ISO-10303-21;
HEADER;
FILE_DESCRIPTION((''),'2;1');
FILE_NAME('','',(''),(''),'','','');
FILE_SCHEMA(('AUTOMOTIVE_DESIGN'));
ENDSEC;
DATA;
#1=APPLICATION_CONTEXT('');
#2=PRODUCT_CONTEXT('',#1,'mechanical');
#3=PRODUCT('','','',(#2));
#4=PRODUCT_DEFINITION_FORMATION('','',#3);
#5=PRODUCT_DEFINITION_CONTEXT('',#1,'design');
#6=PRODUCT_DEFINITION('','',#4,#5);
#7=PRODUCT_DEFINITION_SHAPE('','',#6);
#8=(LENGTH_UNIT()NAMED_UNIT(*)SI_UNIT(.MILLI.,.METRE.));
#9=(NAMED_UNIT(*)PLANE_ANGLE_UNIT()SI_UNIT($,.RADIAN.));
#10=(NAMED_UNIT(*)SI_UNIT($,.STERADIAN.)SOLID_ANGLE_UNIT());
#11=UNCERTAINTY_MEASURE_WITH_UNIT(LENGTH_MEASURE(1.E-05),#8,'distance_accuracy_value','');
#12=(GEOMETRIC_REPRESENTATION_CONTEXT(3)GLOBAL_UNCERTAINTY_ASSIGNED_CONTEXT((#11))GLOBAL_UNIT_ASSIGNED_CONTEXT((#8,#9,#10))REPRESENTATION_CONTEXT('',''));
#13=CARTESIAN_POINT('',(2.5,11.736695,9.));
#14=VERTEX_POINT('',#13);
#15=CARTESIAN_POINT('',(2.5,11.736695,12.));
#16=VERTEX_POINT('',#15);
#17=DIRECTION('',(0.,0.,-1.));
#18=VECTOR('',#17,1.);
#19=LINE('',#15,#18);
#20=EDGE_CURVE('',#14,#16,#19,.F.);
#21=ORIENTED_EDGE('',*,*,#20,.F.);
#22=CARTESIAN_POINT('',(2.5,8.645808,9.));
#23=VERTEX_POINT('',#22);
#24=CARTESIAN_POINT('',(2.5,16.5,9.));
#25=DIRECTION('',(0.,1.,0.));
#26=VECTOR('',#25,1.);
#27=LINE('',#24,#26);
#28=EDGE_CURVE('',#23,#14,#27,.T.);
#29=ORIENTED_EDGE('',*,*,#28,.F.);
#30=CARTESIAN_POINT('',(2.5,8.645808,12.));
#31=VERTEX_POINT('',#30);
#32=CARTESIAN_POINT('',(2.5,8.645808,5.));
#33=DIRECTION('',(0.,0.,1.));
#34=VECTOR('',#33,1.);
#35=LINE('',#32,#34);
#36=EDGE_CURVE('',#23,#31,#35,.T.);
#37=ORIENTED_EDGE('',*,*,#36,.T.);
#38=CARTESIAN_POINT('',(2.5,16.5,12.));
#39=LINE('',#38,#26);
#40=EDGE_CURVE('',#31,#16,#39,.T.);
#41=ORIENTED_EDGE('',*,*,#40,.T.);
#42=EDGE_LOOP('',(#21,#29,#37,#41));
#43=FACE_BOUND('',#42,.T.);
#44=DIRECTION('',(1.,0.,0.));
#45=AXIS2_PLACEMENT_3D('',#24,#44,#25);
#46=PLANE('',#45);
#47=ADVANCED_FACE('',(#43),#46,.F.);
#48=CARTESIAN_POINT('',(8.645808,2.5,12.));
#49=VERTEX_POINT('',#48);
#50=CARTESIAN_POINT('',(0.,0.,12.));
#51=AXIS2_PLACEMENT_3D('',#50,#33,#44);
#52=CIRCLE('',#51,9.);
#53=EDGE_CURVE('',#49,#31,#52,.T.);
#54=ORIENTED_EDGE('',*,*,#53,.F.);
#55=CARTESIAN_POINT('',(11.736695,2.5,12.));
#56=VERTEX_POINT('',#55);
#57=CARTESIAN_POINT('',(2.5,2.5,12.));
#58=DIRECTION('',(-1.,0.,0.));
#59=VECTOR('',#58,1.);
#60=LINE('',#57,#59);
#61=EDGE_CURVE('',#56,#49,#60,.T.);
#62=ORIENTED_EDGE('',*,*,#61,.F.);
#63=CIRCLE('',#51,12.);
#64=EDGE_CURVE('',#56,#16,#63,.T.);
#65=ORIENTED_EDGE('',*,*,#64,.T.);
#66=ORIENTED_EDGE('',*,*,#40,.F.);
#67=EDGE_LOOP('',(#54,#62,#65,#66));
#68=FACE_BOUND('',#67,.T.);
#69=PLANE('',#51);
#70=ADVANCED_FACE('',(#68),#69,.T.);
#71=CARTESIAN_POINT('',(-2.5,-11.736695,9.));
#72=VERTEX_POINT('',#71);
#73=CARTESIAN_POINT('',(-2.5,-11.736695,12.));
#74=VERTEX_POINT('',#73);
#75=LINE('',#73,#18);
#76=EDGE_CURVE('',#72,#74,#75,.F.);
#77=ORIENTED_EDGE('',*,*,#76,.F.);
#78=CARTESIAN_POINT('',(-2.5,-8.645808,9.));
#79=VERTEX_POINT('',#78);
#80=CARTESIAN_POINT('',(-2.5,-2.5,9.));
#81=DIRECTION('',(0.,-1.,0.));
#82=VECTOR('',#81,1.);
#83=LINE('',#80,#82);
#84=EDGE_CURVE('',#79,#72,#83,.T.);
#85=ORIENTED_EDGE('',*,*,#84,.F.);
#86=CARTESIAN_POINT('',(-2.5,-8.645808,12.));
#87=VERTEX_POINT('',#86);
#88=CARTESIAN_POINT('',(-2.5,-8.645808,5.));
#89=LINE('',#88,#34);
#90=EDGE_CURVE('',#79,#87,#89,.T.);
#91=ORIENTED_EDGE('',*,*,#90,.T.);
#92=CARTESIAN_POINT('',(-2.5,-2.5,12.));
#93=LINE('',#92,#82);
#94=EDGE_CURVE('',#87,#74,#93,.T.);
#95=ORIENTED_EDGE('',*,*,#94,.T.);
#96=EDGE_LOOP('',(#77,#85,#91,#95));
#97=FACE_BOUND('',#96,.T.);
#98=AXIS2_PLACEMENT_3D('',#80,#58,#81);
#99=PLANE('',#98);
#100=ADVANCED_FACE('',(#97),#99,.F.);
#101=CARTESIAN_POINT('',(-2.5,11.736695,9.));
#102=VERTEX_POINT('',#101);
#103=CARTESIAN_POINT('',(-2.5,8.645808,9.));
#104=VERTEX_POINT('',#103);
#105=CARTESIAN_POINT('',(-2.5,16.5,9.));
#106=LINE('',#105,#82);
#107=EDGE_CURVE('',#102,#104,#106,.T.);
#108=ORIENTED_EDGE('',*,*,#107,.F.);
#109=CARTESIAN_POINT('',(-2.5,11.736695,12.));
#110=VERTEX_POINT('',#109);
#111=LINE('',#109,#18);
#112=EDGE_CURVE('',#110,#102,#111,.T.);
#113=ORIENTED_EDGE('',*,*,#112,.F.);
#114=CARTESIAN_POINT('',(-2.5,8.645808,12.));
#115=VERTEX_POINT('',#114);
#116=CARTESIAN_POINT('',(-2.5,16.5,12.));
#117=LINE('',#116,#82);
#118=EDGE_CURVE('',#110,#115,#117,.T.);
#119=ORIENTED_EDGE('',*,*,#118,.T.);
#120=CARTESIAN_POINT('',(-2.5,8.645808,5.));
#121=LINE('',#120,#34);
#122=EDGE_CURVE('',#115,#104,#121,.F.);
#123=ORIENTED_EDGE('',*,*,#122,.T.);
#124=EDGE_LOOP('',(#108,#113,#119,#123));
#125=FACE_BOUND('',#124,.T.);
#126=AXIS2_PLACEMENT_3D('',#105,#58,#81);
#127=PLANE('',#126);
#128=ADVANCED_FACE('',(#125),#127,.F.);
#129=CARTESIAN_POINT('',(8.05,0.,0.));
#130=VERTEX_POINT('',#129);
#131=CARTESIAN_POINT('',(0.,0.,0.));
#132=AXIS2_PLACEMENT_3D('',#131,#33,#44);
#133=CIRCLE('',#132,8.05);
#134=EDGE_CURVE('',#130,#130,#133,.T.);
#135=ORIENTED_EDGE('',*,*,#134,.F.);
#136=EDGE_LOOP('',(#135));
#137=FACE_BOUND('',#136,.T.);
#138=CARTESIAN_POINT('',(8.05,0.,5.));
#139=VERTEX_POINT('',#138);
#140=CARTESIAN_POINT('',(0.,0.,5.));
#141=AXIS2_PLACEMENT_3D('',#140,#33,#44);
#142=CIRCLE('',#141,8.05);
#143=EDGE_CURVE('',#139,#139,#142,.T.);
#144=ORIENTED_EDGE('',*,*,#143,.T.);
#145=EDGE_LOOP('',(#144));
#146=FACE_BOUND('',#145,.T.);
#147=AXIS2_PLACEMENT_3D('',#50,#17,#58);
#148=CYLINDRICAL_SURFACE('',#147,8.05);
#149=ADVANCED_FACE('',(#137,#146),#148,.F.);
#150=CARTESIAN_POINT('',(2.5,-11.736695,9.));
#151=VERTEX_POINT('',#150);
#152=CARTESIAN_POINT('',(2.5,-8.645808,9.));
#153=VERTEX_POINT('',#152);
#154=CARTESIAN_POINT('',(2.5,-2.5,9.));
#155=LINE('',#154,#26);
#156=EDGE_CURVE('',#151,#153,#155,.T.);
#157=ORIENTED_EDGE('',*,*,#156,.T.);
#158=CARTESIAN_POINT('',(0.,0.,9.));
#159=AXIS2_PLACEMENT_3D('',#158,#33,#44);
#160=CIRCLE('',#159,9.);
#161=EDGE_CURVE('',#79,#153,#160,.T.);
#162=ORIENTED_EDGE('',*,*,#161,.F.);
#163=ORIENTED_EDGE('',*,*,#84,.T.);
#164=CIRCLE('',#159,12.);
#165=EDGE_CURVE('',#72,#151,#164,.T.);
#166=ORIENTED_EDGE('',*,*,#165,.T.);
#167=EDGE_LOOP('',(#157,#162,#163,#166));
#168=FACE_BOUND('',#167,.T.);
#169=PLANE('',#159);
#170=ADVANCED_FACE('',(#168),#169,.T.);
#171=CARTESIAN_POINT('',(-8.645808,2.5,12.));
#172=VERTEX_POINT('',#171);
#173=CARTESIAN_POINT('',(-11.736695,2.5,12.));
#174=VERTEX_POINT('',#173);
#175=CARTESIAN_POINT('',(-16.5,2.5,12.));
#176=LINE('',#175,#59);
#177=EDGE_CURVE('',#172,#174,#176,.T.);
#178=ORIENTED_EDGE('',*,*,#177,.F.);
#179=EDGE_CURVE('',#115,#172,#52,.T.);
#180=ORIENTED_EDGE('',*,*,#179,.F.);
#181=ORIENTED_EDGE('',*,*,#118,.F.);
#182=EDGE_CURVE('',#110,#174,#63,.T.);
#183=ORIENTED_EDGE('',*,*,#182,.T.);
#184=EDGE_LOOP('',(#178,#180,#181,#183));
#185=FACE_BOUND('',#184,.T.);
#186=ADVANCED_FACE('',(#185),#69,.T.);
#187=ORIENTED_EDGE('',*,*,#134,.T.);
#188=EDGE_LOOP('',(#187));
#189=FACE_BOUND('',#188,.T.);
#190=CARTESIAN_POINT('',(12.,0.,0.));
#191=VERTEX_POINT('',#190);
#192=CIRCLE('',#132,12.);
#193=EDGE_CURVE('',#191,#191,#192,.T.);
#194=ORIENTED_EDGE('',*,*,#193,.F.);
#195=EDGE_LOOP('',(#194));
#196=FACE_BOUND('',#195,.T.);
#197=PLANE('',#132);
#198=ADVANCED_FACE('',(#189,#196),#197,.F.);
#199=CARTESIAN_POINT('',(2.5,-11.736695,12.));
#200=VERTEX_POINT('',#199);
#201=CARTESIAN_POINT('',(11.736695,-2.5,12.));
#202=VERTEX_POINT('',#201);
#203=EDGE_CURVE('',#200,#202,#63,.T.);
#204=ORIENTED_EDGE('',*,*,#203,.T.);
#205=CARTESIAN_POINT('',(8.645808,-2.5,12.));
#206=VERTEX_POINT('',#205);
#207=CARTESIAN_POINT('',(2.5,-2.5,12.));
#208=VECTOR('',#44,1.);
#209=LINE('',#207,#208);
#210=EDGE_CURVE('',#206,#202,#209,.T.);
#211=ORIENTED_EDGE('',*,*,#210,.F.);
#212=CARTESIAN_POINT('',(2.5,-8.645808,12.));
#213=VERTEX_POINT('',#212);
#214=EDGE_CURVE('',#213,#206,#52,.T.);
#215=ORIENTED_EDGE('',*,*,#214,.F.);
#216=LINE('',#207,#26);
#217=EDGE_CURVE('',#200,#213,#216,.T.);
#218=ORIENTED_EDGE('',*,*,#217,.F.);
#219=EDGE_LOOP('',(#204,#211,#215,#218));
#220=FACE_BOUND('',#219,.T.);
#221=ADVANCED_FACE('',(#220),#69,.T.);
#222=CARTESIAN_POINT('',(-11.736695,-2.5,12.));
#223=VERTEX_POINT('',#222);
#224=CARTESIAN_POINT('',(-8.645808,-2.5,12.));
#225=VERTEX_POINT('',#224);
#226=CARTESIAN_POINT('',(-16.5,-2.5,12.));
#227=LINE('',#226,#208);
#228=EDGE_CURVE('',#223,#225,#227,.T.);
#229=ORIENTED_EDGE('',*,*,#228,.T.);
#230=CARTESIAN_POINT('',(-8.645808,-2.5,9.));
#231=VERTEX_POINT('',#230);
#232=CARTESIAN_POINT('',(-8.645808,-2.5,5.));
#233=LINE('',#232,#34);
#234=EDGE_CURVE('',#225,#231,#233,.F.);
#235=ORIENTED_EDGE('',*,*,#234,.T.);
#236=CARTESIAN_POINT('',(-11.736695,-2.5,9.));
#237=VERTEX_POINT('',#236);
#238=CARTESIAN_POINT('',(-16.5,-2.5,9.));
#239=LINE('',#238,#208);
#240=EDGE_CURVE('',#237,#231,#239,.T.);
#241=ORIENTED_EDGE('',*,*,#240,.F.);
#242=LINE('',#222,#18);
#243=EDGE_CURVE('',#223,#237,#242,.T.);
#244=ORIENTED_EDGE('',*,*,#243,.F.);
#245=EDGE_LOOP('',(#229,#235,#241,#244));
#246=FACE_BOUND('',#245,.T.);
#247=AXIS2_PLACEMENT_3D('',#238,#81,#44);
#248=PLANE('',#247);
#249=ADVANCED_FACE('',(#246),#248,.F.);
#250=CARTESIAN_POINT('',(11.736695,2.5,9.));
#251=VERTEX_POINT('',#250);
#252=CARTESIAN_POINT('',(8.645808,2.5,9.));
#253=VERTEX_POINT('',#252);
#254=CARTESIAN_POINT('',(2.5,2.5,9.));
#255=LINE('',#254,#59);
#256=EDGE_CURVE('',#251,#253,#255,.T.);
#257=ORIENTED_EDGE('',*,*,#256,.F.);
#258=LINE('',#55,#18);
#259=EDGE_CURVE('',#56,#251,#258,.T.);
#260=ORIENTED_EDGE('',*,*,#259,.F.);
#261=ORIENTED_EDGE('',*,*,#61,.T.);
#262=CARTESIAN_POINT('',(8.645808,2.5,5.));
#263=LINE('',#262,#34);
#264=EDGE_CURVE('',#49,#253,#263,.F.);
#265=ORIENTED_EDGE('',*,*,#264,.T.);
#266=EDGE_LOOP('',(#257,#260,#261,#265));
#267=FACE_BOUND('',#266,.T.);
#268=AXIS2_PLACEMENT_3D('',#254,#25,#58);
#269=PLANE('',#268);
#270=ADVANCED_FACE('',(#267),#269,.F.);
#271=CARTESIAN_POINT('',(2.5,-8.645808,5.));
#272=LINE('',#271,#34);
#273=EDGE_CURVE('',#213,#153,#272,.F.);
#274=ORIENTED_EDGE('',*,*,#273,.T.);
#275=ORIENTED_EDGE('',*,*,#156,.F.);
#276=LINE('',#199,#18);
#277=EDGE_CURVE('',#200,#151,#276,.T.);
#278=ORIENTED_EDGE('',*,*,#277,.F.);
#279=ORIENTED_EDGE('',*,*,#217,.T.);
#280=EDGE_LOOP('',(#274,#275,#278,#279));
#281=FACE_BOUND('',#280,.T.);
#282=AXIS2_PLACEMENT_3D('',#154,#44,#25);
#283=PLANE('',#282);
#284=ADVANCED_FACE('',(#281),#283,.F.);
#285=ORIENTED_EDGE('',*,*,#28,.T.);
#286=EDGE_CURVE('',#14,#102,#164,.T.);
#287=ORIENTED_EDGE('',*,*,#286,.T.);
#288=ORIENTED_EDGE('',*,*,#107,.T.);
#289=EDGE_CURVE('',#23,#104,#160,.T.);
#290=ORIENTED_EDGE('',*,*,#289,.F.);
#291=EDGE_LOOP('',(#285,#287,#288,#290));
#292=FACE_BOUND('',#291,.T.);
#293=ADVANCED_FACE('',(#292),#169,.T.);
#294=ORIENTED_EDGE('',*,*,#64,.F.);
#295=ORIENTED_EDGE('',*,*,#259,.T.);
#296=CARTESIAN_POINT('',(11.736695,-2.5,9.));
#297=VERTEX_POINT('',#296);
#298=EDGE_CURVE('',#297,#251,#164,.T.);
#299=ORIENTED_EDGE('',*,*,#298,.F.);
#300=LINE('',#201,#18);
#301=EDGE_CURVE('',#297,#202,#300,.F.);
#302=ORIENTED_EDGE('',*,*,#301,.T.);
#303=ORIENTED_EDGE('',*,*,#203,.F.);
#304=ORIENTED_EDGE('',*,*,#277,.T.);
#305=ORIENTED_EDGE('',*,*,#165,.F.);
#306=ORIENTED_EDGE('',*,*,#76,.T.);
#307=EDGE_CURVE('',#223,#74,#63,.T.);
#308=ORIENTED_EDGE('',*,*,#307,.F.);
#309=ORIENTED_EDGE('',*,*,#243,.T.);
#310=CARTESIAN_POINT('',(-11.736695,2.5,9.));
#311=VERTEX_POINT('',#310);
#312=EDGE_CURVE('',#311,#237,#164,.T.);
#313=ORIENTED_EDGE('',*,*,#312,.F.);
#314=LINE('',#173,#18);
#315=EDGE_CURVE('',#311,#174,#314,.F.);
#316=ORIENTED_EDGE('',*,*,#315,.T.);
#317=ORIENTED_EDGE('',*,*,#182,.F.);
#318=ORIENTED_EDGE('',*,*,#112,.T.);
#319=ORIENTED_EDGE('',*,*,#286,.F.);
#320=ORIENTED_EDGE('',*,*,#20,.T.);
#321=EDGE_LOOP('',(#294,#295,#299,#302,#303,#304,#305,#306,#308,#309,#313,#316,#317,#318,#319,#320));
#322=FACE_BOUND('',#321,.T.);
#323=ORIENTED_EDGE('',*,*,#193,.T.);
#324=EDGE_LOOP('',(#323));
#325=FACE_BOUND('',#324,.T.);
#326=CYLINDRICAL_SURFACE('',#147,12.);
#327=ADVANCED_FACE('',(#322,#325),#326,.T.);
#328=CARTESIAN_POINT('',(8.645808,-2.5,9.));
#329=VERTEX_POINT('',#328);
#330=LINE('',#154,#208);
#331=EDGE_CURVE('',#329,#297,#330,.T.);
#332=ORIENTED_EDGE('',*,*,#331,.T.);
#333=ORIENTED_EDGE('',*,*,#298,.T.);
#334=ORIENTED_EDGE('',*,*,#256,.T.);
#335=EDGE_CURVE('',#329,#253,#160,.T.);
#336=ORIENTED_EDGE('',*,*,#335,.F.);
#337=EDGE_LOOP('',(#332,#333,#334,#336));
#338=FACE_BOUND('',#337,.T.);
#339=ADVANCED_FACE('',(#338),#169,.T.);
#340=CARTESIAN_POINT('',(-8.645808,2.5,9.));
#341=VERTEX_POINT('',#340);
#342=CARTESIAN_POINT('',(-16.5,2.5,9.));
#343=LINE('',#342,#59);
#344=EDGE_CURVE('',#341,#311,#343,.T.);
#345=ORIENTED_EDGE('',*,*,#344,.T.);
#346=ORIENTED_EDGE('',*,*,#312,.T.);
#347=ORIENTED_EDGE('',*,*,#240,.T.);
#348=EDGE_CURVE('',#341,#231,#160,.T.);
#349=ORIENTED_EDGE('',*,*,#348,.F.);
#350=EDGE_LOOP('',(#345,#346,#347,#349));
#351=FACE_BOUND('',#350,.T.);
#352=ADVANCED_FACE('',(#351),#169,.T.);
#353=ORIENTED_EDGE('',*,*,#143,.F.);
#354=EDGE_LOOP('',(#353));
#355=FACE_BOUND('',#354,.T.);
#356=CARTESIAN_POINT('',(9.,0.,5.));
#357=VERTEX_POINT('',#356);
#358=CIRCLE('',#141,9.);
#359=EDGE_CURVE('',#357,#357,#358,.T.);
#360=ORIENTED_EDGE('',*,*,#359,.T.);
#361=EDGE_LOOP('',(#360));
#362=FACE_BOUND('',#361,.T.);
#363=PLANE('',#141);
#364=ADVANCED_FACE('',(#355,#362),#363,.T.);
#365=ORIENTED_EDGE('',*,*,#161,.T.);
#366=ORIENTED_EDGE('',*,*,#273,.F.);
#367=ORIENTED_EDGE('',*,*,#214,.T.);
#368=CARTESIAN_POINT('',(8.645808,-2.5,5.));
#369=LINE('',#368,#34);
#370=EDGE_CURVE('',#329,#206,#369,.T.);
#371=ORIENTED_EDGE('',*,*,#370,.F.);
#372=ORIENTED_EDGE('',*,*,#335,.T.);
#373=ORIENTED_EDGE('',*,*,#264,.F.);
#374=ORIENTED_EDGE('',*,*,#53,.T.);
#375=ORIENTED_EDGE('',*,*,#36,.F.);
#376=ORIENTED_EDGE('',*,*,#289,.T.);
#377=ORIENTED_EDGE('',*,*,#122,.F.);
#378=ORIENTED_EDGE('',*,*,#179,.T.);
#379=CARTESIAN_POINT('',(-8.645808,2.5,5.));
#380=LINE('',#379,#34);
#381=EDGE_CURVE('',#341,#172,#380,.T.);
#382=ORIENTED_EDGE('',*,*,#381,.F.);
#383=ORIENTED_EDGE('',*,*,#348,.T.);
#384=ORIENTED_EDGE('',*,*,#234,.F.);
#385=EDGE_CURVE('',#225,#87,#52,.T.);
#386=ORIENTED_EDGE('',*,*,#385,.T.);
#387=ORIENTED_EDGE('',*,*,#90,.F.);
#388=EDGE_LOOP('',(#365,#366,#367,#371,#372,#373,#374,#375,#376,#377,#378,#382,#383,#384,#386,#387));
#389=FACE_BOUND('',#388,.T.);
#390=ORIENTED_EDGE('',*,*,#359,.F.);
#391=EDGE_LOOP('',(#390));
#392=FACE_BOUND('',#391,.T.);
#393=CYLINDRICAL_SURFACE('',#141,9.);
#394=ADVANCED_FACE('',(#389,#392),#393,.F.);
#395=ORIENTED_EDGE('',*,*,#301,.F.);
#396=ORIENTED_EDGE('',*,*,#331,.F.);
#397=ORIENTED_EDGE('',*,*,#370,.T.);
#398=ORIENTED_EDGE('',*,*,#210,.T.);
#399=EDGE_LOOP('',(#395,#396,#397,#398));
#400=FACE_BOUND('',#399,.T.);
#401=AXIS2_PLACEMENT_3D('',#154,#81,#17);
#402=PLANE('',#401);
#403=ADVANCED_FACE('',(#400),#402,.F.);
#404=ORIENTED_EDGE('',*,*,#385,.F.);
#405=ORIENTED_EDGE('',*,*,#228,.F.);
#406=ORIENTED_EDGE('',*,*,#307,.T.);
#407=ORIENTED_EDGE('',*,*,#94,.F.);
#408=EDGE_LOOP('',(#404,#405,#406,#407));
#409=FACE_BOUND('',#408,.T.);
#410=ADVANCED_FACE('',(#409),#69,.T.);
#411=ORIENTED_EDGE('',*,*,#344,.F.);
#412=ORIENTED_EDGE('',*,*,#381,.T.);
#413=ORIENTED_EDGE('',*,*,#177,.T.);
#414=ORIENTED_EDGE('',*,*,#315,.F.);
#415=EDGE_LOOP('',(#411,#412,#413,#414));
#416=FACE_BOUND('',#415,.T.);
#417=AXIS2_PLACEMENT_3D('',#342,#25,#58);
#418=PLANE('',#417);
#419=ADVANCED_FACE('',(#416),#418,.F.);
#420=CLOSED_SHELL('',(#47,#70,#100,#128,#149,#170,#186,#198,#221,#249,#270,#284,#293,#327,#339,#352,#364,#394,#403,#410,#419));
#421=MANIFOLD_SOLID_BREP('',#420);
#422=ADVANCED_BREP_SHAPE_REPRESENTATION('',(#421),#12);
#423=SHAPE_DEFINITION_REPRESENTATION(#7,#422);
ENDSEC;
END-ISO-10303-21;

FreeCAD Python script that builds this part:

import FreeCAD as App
import Part
import Sketcher

doc = App.newDocument("Part")
body = doc.addObject("PartDesign::Body", "Body")

# Sketch on XY plane
sketch1 = body.newObject("Sketcher::SketchObject", "Sketch")
sketch1.AttachmentSupport = (doc.getObject("XY_Plane"), [""])
sketch1.MapMode = "FlatFace"
sketch1.addGeometry(Part.Circle(App.Vector(0, 0, 0), App.Vector(0, 0, 1), 12), False)
sketch1.addGeometry(Part.Circle(App.Vector(0, 0, 0), App.Vector(0, 0, 1), 8.05), False)
sketch1.addConstraint(Sketcher.Constraint("Coincident", 0, 3, -1, 1))
sketch1.addConstraint(Sketcher.Constraint("Coincident", 1, 3, -1, 1))
sketch1.addConstraint(Sketcher.Constraint("Diameter", 0, 24.0))
sketch1.addConstraint(Sketcher.Constraint("Diameter", 1, 16.1))
pad1 = body.newObject("PartDesign::Pad", "Pad")
pad1.Profile = sketch1
pad1.Length = 12

# Sketch on XY plane
sketch2 = body.newObject("Sketcher::SketchObject", "Sketch001")
sketch2.AttachmentSupport = (doc.getObject("XY_Plane"), [""])
sketch2.MapMode = "FlatFace"
sketch2.AttachmentOffset = App.Placement(App.Vector(0, 0, 12), App.Rotation())
sketch2.addGeometry(Part.LineSegment(App.Vector(-2.5, 2.5, 0), App.Vector(-16.5, 2.5, 0)), False)
sketch2.addGeometry(Part.LineSegment(App.Vector(-16.5, 2.5, 0), App.Vector(-16.5, -2.5, 0)), False)
sketch2.addGeometry(Part.LineSegment(App.Vector(-16.5, -2.5, 0), App.Vector(-2.5, -2.5, 0)), False)
sketch2.addGeometry(Part.LineSegment(App.Vector(-2.5, -2.5, 0), App.Vector(-2.5, -16.5, 0)), False)
sketch2.addGeometry(Part.LineSegment(App.Vector(-2.5, -16.5, 0), App.Vector(2.5, -16.5, 0)), False)
sketch2.addGeometry(Part.LineSegment(App.Vector(2.5, -16.5, 0), App.Vector(2.5, -2.5, 0)), False)
sketch2.addGeometry(Part.LineSegment(App.Vector(2.5, -2.5, 0), App.Vector(16.5, -2.5, 0)), False)
sketch2.addGeometry(Part.LineSegment(App.Vector(16.5, -2.5, 0), App.Vector(16.5, 2.5, 0)), False)
sketch2.addGeometry(Part.LineSegment(App.Vector(16.5, 2.5, 0), App.Vector(2.5, 2.5, 0)), False)
sketch2.addGeometry(Part.LineSegment(App.Vector(2.5, 2.5, 0), App.Vector(2.5, 16.5, 0)), False)
sketch2.addGeometry(Part.LineSegment(App.Vector(2.5, 16.5, 0), App.Vector(-2.5, 16.5, 0)), False)
sketch2.addGeometry(Part.LineSegment(App.Vector(-2.5, 16.5, 0), App.Vector(-2.5, 2.5, 0)), False)
sketch2.addConstraint(Sketcher.Constraint("Coincident", 0, 2, 1, 1))
sketch2.addConstraint(Sketcher.Constraint("Coincident", 1, 2, 2, 1))
sketch2.addConstraint(Sketcher.Constraint("Coincident", 2, 2, 3, 1))
sketch2.addConstraint(Sketcher.Constraint("Coincident", 3, 2, 4, 1))
sketch2.addConstraint(Sketcher.Constraint("Coincident", 4, 2, 5, 1))
sketch2.addConstraint(Sketcher.Constraint("Coincident", 5, 2, 6, 1))
sketch2.addConstraint(Sketcher.Constraint("Coincident", 6, 2, 7, 1))
sketch2.addConstraint(Sketcher.Constraint("Coincident", 7, 2, 8, 1))
sketch2.addConstraint(Sketcher.Constraint("Coincident", 8, 2, 9, 1))
sketch2.addConstraint(Sketcher.Constraint("Coincident", 9, 2, 10, 1))
sketch2.addConstraint(Sketcher.Constraint("Coincident", 10, 2, 11, 1))
sketch2.addConstraint(Sketcher.Constraint("Coincident", 11, 2, 0, 1))
sketch2.addConstraint(Sketcher.Constraint("Horizontal", 0))
sketch2.addConstraint(Sketcher.Constraint("Vertical", 1))
sketch2.addConstraint(Sketcher.Constraint("Horizontal", 2))
sketch2.addConstraint(Sketcher.Constraint("Vertical", 3))
sketch2.addConstraint(Sketcher.Constraint("Horizontal", 4))
sketch2.addConstraint(Sketcher.Constraint("Vertical", 5))
sketch2.addConstraint(Sketcher.Constraint("Horizontal", 6))
sketch2.addConstraint(Sketcher.Constraint("Vertical", 7))
sketch2.addConstraint(Sketcher.Constraint("Horizontal", 8))
sketch2.addConstraint(Sketcher.Constraint("Vertical", 9))
sketch2.addConstraint(Sketcher.Constraint("Horizontal", 10))
sketch2.addConstraint(Sketcher.Constraint("Vertical", 11))
sketch2.addConstraint(Sketcher.Constraint("Symmetric", 0, 2, 6, 2, -1, 1))
sketch2.addConstraint(Sketcher.Constraint("Symmetric", 2, 2, 8, 2, -1, 1))
sketch2.addConstraint(Sketcher.Constraint("Symmetric", 4, 2, 10, 2, -1, 1))
sketch2.addConstraint(Sketcher.Constraint("Symmetric", 2, 2, 5, 2, -2))
sketch2.addConstraint(Sketcher.Constraint("Equal", 10, 1))
sketch2.addConstraint(Sketcher.Constraint("Equal", 8, 3))
sketch2.addConstraint(Sketcher.Constraint("DistanceX", 0, 2, 0, 1, 14.0))
sketch2.addConstraint(Sketcher.Constraint("DistanceX", 4, 1, 4, 2, 5.0))
pocket1 = body.newObject("PartDesign::Pocket", "Pocket")
pocket1.Profile = sketch2
pocket1.Length = 3

# Sketch on XY plane
sketch3 = body.newObject("Sketcher::SketchObject", "Sketch002")
sketch3.AttachmentSupport = (doc.getObject("XY_Plane"), [""])
sketch3.MapMode = "FlatFace"
sketch3.AttachmentOffset = App.Placement(App.Vector(0, 0, 12), App.Rotation())
sketch3.addGeometry(Part.Circle(App.Vector(0, 0, 0), App.Vector(0, 0, 1), 9), False)
sketch3.addConstraint(Sketcher.Constraint("Coincident", 0, 3, -1, 1))
sketch3.addConstraint(Sketcher.Constraint("Diameter", 0, 18.0))
pocket2 = body.newObject("PartDesign::Pocket", "Pocket001")
pocket2.Profile = sketch3
pocket2.Length = 7

doc.recompute()
